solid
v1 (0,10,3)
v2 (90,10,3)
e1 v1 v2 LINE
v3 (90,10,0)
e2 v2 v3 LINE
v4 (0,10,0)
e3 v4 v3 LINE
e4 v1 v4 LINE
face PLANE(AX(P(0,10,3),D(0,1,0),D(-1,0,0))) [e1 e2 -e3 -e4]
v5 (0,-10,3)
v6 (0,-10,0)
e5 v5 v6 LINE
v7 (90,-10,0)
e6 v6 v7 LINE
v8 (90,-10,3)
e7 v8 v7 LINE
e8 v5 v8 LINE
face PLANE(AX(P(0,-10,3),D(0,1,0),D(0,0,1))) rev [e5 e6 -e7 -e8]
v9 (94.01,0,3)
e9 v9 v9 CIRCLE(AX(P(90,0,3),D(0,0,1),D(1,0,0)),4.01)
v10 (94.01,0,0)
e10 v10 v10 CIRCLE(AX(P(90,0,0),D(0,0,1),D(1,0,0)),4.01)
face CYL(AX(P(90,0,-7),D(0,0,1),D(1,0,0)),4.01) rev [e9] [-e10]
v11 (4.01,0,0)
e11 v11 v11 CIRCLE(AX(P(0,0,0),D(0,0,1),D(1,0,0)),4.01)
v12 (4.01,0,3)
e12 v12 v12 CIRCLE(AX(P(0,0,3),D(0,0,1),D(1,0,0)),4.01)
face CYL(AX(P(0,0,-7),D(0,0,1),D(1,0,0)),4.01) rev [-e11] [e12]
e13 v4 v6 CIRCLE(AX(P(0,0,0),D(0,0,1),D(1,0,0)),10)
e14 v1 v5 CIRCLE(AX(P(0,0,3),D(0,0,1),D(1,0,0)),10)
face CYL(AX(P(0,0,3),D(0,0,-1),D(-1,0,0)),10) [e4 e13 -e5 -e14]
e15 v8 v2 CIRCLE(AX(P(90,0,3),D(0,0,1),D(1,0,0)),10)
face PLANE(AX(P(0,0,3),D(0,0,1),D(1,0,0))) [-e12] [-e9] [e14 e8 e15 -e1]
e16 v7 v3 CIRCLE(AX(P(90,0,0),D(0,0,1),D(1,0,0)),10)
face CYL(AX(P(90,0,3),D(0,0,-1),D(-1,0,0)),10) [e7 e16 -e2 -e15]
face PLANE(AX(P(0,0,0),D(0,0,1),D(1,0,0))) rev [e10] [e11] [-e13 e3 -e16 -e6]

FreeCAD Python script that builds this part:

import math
import FreeCAD as App
import Part
import Sketcher
Q = App.Units.Quantity

doc = App.newDocument("Part")
body = doc.addObject("PartDesign::Body", "Body")

sketch1 = body.newObject("Sketcher::SketchObject", "Sketch")
sketch1.AttachmentSupport = (doc.getObject("XY_Plane"), [""])
sketch1.MapMode = "FlatFace"
sketch1.addGeometry([
    Part.LineSegment(App.Vector(90, 10, 0), App.Vector(0, 10, 0)),
    Part.ArcOfCircle(Part.Circle(App.Vector(0, 0, 0), App.Vector(0, 0, 1), 10), math.radians(90), math.radians(270)),
    Part.LineSegment(App.Vector(0, -10, 0), App.Vector(90, -10, 0)),
    Part.ArcOfCircle(Part.Circle(App.Vector(90, 0, 0), App.Vector(0, 0, 1), 10), math.radians(-90), math.radians(90)),
], False)
sketch1.addConstraint([
    Sketcher.Constraint("Tangent", 0, 2, 1, 1),
    Sketcher.Constraint("Tangent", 1, 2, 2, 1),
    Sketcher.Constraint("Tangent", 2, 2, 3, 1),
    Sketcher.Constraint("Tangent", 3, 2, 0, 1),
    Sketcher.Constraint("Horizontal", 0),
    Sketcher.Constraint("Horizontal", 2),
    Sketcher.Constraint("Coincident", 1, 3, -1, 1),
    Sketcher.Constraint("Radius", 1, Q("10 mm")),
    Sketcher.Constraint("DistanceX", 0, 2, 0, 1, Q("90 mm")),
])
pad1 = body.newObject("PartDesign::Pad", "Pad")
pad1.Profile = sketch1
pad1.Length = 3

sketch2 = body.newObject("Sketcher::SketchObject", "Sketch001")
sketch2.AttachmentSupport = (doc.getObject("XY_Plane"), [""])
sketch2.MapMode = "FlatFace"
sketch2.AttachmentOffset = App.Placement(App.Vector(0, 0, 3), App.Rotation())
sketch2.addGeometry([
    Part.Circle(App.Vector(0, 0, 0), App.Vector(0, 0, 1), 4.01),
    Part.Circle(App.Vector(90, 0, 0), App.Vector(0, 0, 1), 4.01),
], False)
sketch2.addConstraint([
    Sketcher.Constraint("Coincident", 0, 3, -1, 1),
    Sketcher.Constraint("Equal", 0, 1),
    Sketcher.Constraint("PointOnObject", 1, 3, -1),
    Sketcher.Constraint("Diameter", 0, Q("8.02 mm")),
    Sketcher.Constraint("DistanceX", -1, 1, 1, 3, Q("90 mm")),
])
pocket1 = body.newObject("PartDesign::Pocket", "Pocket")
pocket1.Profile = sketch2
pocket1.Length = 10

doc.recompute()
